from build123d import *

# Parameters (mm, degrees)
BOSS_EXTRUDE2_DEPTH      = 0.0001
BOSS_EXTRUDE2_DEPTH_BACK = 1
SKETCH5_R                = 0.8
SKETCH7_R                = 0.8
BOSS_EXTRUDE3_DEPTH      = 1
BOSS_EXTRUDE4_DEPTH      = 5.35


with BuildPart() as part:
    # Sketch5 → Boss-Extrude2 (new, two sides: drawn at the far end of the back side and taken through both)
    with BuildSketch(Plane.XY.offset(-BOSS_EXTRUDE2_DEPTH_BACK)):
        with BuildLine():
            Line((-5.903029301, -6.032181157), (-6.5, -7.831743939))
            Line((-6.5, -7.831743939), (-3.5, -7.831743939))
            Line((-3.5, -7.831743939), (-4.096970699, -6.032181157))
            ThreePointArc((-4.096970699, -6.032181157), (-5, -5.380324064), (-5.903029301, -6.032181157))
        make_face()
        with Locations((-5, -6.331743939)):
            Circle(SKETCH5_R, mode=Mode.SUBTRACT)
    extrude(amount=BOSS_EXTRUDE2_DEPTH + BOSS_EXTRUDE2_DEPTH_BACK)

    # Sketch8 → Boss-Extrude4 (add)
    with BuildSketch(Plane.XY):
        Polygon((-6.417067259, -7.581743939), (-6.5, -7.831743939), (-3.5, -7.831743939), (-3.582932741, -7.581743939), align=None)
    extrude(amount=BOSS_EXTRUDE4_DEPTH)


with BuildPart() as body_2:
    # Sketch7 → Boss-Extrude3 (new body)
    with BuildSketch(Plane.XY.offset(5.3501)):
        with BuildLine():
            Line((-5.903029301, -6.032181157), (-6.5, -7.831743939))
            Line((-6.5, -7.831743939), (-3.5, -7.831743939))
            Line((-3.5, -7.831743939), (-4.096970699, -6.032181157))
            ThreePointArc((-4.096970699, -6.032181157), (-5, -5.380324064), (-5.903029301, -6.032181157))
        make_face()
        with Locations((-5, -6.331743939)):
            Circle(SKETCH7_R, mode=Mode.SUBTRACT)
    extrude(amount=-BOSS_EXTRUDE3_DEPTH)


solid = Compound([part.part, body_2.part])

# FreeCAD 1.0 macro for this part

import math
import FreeCAD as App
import Part
import Sketcher

V = App.Vector


def add_polygon(sketch, points):
    """Adds a closed chain of lines whose ends are joined by coincident constraints."""
    first, n = sketch.GeometryCount, len(points)
    for a, b in zip(points, points[1:] + points[:1]):
        sketch.addGeometry(Part.LineSegment(App.Vector(*a, 0), App.Vector(*b, 0)), False)
    for i in range(n):
        sketch.addConstraint(Sketcher.Constraint("Coincident", first + i, 2, first + (i + 1) % n, 1))

doc = App.newDocument("Part")
body = doc.addObject("PartDesign::Body", "Body")

sketch1 = body.newObject("Sketcher::SketchObject", "Sketch")
sketch1.AttachmentSupport = (doc.getObject("XY_Plane"), [""])
sketch1.MapMode = "FlatFace"
sketch1.addGeometry(Part.LineSegment(V(-5.9, -6, 0), V(-6.5, -7.8, 0)), False)
sketch1.addGeometry(Part.LineSegment(V(-6.5, -7.8, 0), V(-3.5, -7.8, 0)), False)
sketch1.addGeometry(Part.LineSegment(V(-3.5, -7.8, 0), V(-4.1, -6, 0)), False)
sketch1.addGeometry(Part.ArcOfCircle(Part.Circle(V(-5, -6.3, 0), V(0, 0, 1), 1), math.radians(18), math.radians(162)), False)
sketch1.addGeometry(Part.Circle(V(-5, -6.3, 0), V(0, 0, 1), 0.8), False)
sketch1.addConstraint(Sketcher.Constraint("Coincident", 0, 2, 1, 1))
sketch1.addConstraint(Sketcher.Constraint("Coincident", 1, 2, 2, 1))
sketch1.addConstraint(Sketcher.Constraint("Tangent", 2, 2, 3, 1))
sketch1.addConstraint(Sketcher.Constraint("Tangent", 3, 2, 0, 1))
sketch1.addConstraint(Sketcher.Constraint("Horizontal", 1))
sketch1.addConstraint(Sketcher.Constraint("Coincident", 4, 3, 3, 3))
sketch1.addConstraint(Sketcher.Constraint("Horizontal", 2, 2, 3, 2))
sketch1.addConstraint(Sketcher.Constraint("Diameter", 4, 1.6))
sketch1.addConstraint(Sketcher.Constraint("DistanceX", 1, 1, 1, 2, 3.0))
sketch1.addConstraint(Sketcher.Constraint("DistanceX", 3, 3, -1, 1, 5.0))
sketch1.addConstraint(Sketcher.Constraint("DistanceY", 0, 2, 3, 3, 1.5))
sketch1.addConstraint(Sketcher.Constraint("Radius", 3, 0.95142))
sketch1.addConstraint(Sketcher.Constraint("DistanceY", 2, 2, -1, 1, 6.032181))
pad1 = body.newObject("PartDesign::Pad", "Pad")
pad1.Profile = sketch1
pad1.Type = "TwoLengths"
pad1.Length = 0.0001
pad1.Length2 = 1

sketch2 = body.newObject("Sketcher::SketchObject", "Sketch001")
sketch2.AttachmentSupport = (doc.getObject("XY_Plane"), [""])
sketch2.MapMode = "FlatFace"
add_polygon(sketch2, [(-6.42, -7.58), (-6.5, -7.83), (-3.5, -7.83), (-3.58, -7.58)])
sketch2.addConstraint(Sketcher.Constraint("Horizontal", 1))
sketch2.addConstraint(Sketcher.Constraint("Horizontal", 3))
sketch2.addConstraint(Sketcher.Constraint("Equal", 0, 2))
sketch2.addConstraint(Sketcher.Constraint("DistanceX", 1, 1, 1, 2, 3.0))
sketch2.addConstraint(Sketcher.Constraint("DistanceX", 0, 2, -1, 1, 6.5))
sketch2.addConstraint(Sketcher.Constraint("DistanceY", 1, 2, 2, 2, 0.25))
sketch2.addConstraint(Sketcher.Constraint("DistanceX", 3, 2, 3, 1, 2.834135))
sketch2.addConstraint(Sketcher.Constraint("DistanceY", 0, 2, -1, 1, 7.831744))
pad2 = body.newObject("PartDesign::Pad", "Pad001")
pad2.Profile = sketch2
pad2.Length = 5.35
body2 = doc.addObject("PartDesign::Body", "Body001")

sketch3 = body2.newObject("Sketcher::SketchObject", "Sketch002")
sketch3.AttachmentSupport = (doc.getObject("XY_Plane001"), [""])
sketch3.MapMode = "FlatFace"
sketch3.AttachmentOffset = App.Placement(V(0, 0, 5.3501), App.Rotation())
sketch3.addGeometry(Part.LineSegment(V(-5.9, -6, 0), V(-6.5, -7.8, 0)), False)
sketch3.addGeometry(Part.LineSegment(V(-6.5, -7.8, 0), V(-3.5, -7.8, 0)), False)
sketch3.addGeometry(Part.LineSegment(V(-3.5, -7.8, 0), V(-4.1, -6, 0)), False)
sketch3.addGeometry(Part.ArcOfCircle(Part.Circle(V(-5, -6.3, 0), V(0, 0, 1), 1), math.radians(18), math.radians(162)), False)
sketch3.addGeometry(Part.Circle(V(-5, -6.3, 0), V(0, 0, 1), 0.8), False)
sketch3.addConstraint(Sketcher.Constraint("Coincident", 0, 2, 1, 1))
sketch3.addConstraint(Sketcher.Constraint("Coincident", 1, 2, 2, 1))
sketch3.addConstraint(Sketcher.Constraint("Tangent", 2, 2, 3, 1))
sketch3.addConstraint(Sketcher.Constraint("Tangent", 3, 2, 0, 1))
sketch3.addConstraint(Sketcher.Constraint("Horizontal", 1))
sketch3.addConstraint(Sketcher.Constraint("Coincident", 4, 3, 3, 3))
sketch3.addConstraint(Sketcher.Constraint("Horizontal", 2, 2, 3, 2))
sketch3.addConstraint(Sketcher.Constraint("Diameter", 4, 1.6))
sketch3.addConstraint(Sketcher.Constraint("DistanceX", 1, 1, 1, 2, 3.0))
sketch3.addConstraint(Sketcher.Constraint("DistanceX", 3, 3, -1, 1, 5.0))
sketch3.addConstraint(Sketcher.Constraint("DistanceY", 0, 2, 3, 3, 1.5))
sketch3.addConstraint(Sketcher.Constraint("Radius", 3, 0.95142))
sketch3.addConstraint(Sketcher.Constraint("DistanceY", 2, 2, -1, 1, 6.032181))
pad3 = body2.newObject("PartDesign::Pad", "Pad002")
pad3.Profile = sketch3
pad3.Length = 1
pad3.Reversed = True

doc.recompute()
